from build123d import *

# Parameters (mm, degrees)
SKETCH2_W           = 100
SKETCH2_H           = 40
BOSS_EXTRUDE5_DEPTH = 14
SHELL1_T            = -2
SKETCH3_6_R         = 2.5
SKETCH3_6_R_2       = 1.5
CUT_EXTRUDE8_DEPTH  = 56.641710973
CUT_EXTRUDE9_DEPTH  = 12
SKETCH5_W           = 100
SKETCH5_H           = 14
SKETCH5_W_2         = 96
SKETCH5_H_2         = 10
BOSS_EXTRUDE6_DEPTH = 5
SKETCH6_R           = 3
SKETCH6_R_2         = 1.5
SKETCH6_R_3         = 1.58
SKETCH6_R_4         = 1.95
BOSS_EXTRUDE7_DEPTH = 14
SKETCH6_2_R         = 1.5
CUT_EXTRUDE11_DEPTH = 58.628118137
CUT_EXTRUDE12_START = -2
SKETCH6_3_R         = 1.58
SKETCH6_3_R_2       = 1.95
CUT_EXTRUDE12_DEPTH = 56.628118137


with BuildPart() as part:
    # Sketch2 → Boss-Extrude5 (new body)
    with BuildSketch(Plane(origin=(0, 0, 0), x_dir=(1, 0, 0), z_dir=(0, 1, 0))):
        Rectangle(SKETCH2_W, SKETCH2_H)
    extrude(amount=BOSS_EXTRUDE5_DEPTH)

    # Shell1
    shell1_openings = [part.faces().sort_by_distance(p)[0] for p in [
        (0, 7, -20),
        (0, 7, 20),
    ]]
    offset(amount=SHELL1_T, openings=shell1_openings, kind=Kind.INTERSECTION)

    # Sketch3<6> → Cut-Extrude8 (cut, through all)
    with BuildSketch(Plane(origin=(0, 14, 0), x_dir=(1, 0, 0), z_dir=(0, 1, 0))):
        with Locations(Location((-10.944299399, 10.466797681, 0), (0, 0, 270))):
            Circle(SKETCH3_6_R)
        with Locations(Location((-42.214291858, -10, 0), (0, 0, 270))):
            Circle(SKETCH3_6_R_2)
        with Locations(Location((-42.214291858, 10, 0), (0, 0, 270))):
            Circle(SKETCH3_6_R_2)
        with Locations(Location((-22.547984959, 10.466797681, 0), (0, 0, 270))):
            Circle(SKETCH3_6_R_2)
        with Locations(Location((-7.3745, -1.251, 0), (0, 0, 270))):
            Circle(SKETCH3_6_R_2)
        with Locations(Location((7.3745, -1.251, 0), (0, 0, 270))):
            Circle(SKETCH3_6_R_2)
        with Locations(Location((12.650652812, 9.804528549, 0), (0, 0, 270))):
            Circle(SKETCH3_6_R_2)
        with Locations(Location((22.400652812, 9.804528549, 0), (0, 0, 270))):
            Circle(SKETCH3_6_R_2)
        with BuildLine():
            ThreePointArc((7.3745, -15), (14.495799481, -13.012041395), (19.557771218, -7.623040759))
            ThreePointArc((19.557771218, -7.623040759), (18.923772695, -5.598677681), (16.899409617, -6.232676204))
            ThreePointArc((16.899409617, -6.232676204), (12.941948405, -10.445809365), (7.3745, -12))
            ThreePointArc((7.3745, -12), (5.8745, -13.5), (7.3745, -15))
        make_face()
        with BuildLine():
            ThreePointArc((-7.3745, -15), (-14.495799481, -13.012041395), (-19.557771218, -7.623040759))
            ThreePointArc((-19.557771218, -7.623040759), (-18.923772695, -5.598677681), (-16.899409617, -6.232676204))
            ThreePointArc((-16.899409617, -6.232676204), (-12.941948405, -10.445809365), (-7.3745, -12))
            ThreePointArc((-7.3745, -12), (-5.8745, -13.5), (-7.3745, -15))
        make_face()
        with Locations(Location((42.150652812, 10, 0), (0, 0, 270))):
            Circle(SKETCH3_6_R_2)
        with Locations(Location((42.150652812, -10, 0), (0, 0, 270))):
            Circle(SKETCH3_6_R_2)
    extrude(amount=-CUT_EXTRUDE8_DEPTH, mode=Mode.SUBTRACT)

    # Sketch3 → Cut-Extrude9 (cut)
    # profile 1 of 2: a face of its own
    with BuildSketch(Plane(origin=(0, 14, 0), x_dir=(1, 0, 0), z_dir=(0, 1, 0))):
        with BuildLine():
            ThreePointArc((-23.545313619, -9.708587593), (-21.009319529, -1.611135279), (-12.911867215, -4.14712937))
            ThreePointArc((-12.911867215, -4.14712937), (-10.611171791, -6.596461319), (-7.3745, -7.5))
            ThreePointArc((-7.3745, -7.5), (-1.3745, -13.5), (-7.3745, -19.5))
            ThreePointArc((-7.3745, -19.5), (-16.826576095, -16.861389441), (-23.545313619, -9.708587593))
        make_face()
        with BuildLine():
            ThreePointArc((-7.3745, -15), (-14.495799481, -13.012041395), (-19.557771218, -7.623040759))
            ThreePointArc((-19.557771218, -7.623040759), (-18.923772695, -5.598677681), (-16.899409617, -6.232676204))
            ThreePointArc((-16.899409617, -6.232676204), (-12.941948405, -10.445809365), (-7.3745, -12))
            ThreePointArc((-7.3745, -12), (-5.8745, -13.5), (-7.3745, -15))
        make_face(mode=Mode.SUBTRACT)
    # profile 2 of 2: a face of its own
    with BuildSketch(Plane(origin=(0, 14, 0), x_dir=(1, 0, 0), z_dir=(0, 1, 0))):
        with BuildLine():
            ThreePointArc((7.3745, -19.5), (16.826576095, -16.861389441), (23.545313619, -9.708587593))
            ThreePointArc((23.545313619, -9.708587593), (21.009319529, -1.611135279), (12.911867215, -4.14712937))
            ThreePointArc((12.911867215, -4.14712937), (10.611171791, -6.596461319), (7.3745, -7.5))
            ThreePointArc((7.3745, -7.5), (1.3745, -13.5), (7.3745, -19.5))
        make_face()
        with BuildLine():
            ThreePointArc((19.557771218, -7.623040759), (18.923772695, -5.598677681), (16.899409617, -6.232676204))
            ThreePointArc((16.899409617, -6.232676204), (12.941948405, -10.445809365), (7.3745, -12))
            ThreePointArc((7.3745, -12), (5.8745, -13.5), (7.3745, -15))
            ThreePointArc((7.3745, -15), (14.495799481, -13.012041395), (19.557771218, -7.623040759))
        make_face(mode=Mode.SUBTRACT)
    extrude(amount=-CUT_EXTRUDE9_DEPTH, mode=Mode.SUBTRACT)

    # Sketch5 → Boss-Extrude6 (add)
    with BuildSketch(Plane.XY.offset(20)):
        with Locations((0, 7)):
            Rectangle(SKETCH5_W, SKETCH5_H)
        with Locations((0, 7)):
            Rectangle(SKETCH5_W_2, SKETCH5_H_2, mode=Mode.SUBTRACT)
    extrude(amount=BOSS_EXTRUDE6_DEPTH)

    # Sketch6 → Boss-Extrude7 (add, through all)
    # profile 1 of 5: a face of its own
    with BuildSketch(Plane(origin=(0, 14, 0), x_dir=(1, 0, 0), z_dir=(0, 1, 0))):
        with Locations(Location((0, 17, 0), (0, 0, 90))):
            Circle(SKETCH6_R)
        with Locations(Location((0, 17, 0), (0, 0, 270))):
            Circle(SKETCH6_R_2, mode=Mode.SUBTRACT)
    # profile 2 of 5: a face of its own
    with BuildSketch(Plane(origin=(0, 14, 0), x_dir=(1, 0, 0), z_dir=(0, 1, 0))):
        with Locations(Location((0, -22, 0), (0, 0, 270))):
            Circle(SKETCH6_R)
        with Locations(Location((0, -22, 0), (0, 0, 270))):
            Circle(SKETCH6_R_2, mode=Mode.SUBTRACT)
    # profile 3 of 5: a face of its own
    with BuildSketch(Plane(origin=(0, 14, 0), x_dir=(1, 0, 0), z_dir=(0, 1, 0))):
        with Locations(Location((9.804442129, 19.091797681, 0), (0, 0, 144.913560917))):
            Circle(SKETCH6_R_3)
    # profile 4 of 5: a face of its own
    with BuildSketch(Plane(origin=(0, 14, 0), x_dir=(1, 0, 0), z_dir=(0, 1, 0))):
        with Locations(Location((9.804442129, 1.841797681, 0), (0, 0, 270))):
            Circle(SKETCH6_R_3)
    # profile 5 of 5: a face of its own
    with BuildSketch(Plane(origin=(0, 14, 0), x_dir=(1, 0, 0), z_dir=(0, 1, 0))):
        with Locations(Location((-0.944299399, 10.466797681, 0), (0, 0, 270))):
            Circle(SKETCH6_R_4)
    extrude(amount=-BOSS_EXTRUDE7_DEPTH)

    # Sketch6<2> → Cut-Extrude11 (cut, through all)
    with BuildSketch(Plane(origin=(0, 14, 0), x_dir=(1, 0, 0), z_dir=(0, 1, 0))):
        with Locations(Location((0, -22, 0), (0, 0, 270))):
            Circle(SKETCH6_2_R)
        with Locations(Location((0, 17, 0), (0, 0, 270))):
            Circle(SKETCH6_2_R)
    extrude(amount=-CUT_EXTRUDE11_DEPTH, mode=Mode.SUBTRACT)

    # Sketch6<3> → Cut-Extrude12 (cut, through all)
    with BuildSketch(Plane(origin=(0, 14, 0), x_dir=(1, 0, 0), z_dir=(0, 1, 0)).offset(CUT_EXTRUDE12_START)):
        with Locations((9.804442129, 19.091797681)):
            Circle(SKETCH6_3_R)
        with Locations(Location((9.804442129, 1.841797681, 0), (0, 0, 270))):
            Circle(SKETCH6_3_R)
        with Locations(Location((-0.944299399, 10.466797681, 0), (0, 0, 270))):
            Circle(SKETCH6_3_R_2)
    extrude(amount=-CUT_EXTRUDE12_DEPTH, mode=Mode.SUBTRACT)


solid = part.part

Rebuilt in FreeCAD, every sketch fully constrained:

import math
import FreeCAD as App
import Part
import Sketcher
Q = App.Units.Quantity


def faces_at(feature, points):
    """Names of the faces that lie closest to the given points."""
    faces = feature.Shape.Faces
    near = lambda p: min(range(len(faces)), key=lambda i: faces[i].distToShape(Part.Vertex(*p))[0])
    return sorted({f"Face{near(p) + 1}" for p in points})

doc = App.newDocument("Part")
body = doc.addObject("PartDesign::Body", "Body")

# Sketch on XZ plane
sketch1 = body.newObject("Sketcher::SketchObject", "Sketch")
sketch1.AttachmentSupport = (doc.getObject("XZ_Plane"), [""])
sketch1.MapMode = "FlatFace"
sketch1.addGeometry([
    Part.LineSegment(App.Vector(-50, -20, 0), App.Vector(-50, 20, 0)),
    Part.LineSegment(App.Vector(-50, 20, 0), App.Vector(50, 20, 0)),
    Part.LineSegment(App.Vector(50, 20, 0), App.Vector(50, -20, 0)),
    Part.LineSegment(App.Vector(50, -20, 0), App.Vector(-50, -20, 0)),
], False)
sketch1.addConstraint([
    Sketcher.Constraint("Coincident", 0, 2, 1, 1),
    Sketcher.Constraint("Coincident", 1, 2, 2, 1),
    Sketcher.Constraint("Coincident", 2, 2, 3, 1),
    Sketcher.Constraint("Coincident", 3, 2, 0, 1),
    Sketcher.Constraint("Vertical", 0),
    Sketcher.Constraint("Horizontal", 1),
    Sketcher.Constraint("Vertical", 2),
    Sketcher.Constraint("Horizontal", 3),
    Sketcher.Constraint("Symmetric", 0, 2, 2, 2, -1, 1),
    Sketcher.Constraint("DistanceX", 1, 1, 1, 2, Q("100 mm")),
    Sketcher.Constraint("DistanceY", 0, 1, 0, 2, Q("40 mm")),
])
pad1 = body.newObject("PartDesign::Pad", "Pad")
pad1.Profile = sketch1
pad1.Length = 14
pad1.Reversed = True
doc.recompute()

thickness = body.newObject("PartDesign::Thickness", "Thickness")
thickness.Base = (pad1, faces_at(pad1, [(0, 7, -20), (0, 7, 20)]))
thickness.Value = 2
thickness.Reversed = True
thickness.Join = "Intersection"

# Sketch on XZ plane
sketch2 = body.newObject("Sketcher::SketchObject", "Sketch001")
sketch2.AttachmentSupport = (doc.getObject("XZ_Plane"), [""])
sketch2.MapMode = "FlatFace"
sketch2.AttachmentOffset = App.Placement(App.Vector(0, 0, -14), App.Rotation())
sketch2.addGeometry([
    Part.Circle(App.Vector(-10.9, -10.5, 0), App.Vector(0, 0, 1), 2.5),  # 0
    Part.Circle(App.Vector(-42.2, 10, 0), App.Vector(0, 0, 1), 1.5),  # 1
    Part.Circle(App.Vector(-42.2, -10, 0), App.Vector(0, 0, 1), 1.5),  # 2
    Part.Circle(App.Vector(-22.5, -10.5, 0), App.Vector(0, 0, 1), 1.5),  # 3
    Part.Circle(App.Vector(-7.4, 1.3, 0), App.Vector(0, 0, 1), 1.5),  # 4
    Part.Circle(App.Vector(7.4, 1.3, 0), App.Vector(0, 0, 1), 1.5),  # 5
    Part.Circle(App.Vector(12.7, -9.8, 0), App.Vector(0, 0, 1), 1.5),  # 6
    Part.Circle(App.Vector(22.4, -9.8, 0), App.Vector(0, 0, 1), 1.5),  # 7
    Part.ArcOfCircle(Part.Circle(App.Vector(7.4, 1.3, 0), App.Vector(0, 0, 1), 13.7), math.radians(28), math.radians(90)),  # 8
    Part.ArcOfCircle(Part.Circle(App.Vector(18.2, 6.9, 0), App.Vector(0, 0, 1), 1.5), math.radians(-152), math.radians(28)),  # 9
    Part.ArcOfCircle(Part.Circle(App.Vector(7.4, 1.3, 0), App.Vector(0, 0, 1), 10.7), math.radians(28), math.radians(90)),  # 10
    Part.ArcOfCircle(Part.Circle(App.Vector(7.4, 13.5, 0), App.Vector(0, 0, 1), 1.5), math.radians(90), math.radians(270)),  # 11
    Part.ArcOfCircle(Part.Circle(App.Vector(-7.4, 1.3, 0), App.Vector(0, 0, 1), 13.7), math.radians(90), math.radians(152)),  # 12
    Part.ArcOfCircle(Part.Circle(App.Vector(-7.4, 13.5, 0), App.Vector(0, 0, 1), 1.5), math.radians(-90), math.radians(90)),  # 13
    Part.ArcOfCircle(Part.Circle(App.Vector(-7.4, 1.3, 0), App.Vector(0, 0, 1), 10.7), math.radians(90), math.radians(152)),  # 14
    Part.ArcOfCircle(Part.Circle(App.Vector(-18.2, 6.9, 0), App.Vector(0, 0, 1), 1.5), math.radians(152), math.radians(332)),  # 15
    Part.Circle(App.Vector(42.2, -10, 0), App.Vector(0, 0, 1), 1.5),  # 16
    Part.Circle(App.Vector(42.2, 10, 0), App.Vector(0, 0, 1), 1.5),  # 17
], False)
sketch2.addConstraint([
    Sketcher.Constraint("Tangent", 8, 1, 9, 2),
    Sketcher.Constraint("Tangent", 9, 1, 10, 1),
    Sketcher.Constraint("Tangent", 10, 2, 11, 2),
    Sketcher.Constraint("Tangent", 11, 1, 8, 2),
    Sketcher.Constraint("Tangent", 12, 1, 13, 2),
    Sketcher.Constraint("Tangent", 13, 1, 14, 1),
    Sketcher.Constraint("Tangent", 14, 2, 15, 2),
    Sketcher.Constraint("Tangent", 15, 1, 12, 2),
    Sketcher.Constraint("Coincident", 8, 3, 5, 3),
    Sketcher.Constraint("Coincident", 10, 3, 5, 3),
    Sketcher.Constraint("Coincident", 12, 3, 4, 3),
    Sketcher.Constraint("Coincident", 14, 3, 4, 3),
    Sketcher.Constraint("Equal", 1, 2),
    Sketcher.Constraint("Equal", 2, 3),
    Sketcher.Constraint("Equal", 3, 4),
    Sketcher.Constraint("Equal", 4, 5),
    Sketcher.Constraint("Equal", 5, 6),
    Sketcher.Constraint("Equal", 6, 7),
    Sketcher.Constraint("Equal", 7, 9),
    Sketcher.Constraint("Equal", 8, 12),
    Sketcher.Constraint("Equal", 11, 13),
    Sketcher.Constraint("Equal", 15, 16),
    Sketcher.Constraint("Equal", 16, 17),
    Sketcher.Constraint("Symmetric", 4, 3, 5, 3, -2),
    Sketcher.Constraint("Symmetric", 1, 3, 2, 3, -1),
    Sketcher.Constraint("Symmetric", 16, 3, 17, 3, -1),
    Sketcher.Constraint("Horizontal", 0, 3, 3, 3),
    Sketcher.Constraint("Horizontal", 6, 3, 7, 3),
    Sketcher.Constraint("Horizontal", 9, 3, 15, 3),
    Sketcher.Constraint("Horizontal", 2, 3, 16, 3),
    Sketcher.Constraint("Vertical", 10, 3, 11, 3),
    Sketcher.Constraint("Vertical", 12, 3, 13, 3),
    Sketcher.Constraint("Diameter", 0, Q("5 mm")),
    Sketcher.Constraint("Diameter", 1, Q("3 mm")),
    Sketcher.Constraint("DistanceY", -1, 1, 1, 3, Q("10 mm")),
    Sketcher.Constraint("DistanceY", -1, 1, 10, 2, Q("12 mm")),
    Sketcher.Constraint("Radius", 8, Q("13.749 mm")),
    Sketcher.Constraint("DistanceX", 6, 3, 16, 3, Q("29.5 mm")),
    Sketcher.Constraint("DistanceX", 6, 3, 7, 3, Q("9.75 mm")),
    Sketcher.Constraint("DistanceX", 4, 3, 5, 3, Q("14.749 mm")),
    Sketcher.Constraint("DistanceX", 0, 3, -1, 1, Q("10.944299 mm")),
    Sketcher.Constraint("DistanceX", 1, 3, -1, 1, Q("42.214292 mm")),
    Sketcher.Constraint("DistanceY", 6, 3, -1, 1, Q("9.804529 mm")),
    Sketcher.Constraint("DistanceX", -1, 1, 9, 3, Q("18.22859 mm")),
    Sketcher.Constraint("DistanceY", 0, 3, 6, 3, Q("0.662269 mm")),
    Sketcher.Constraint("DistanceX", 3, 3, -1, 1, Q("22.547985 mm")),
    Sketcher.Constraint("DistanceX", -1, 1, 6, 3, Q("12.650653 mm")),
])
pocket1 = body.newObject("PartDesign::Pocket", "Pocket")
pocket1.Profile = sketch2
pocket1.Type = "ThroughAll"
pocket1.Reversed = True

# Sketch on XZ plane
sketch3 = body.newObject("Sketcher::SketchObject", "Sketch002")
sketch3.AttachmentSupport = (doc.getObject("XZ_Plane"), [""])
sketch3.MapMode = "FlatFace"
sketch3.AttachmentOffset = App.Placement(App.Vector(0, 0, -14), App.Rotation())
sketch3.addGeometry([
    Part.ArcOfCircle(Part.Circle(App.Vector(-18.2, 6.9, 0), App.Vector(0, 0, 1), 6), math.radians(152), math.radians(332)),  # 0
    Part.ArcOfCircle(Part.Circle(App.Vector(-7.4, 1.3, 0), App.Vector(0, 0, 1), 18.2), math.radians(90), math.radians(152)),  # 1
    Part.ArcOfCircle(Part.Circle(App.Vector(-7.4, 13.5, 0), App.Vector(0, 0, 1), 6), math.radians(-90), math.radians(90)),  # 2
    Part.ArcOfCircle(Part.Circle(App.Vector(-7.4, 1.3, 0), App.Vector(0, 0, 1), 6.2), math.radians(90), math.radians(152)),  # 3
    Part.ArcOfCircle(Part.Circle(App.Vector(-7.4, 1.3, 0), App.Vector(0, 0, 1), 13.7), math.radians(90), math.radians(152)),  # 4
    Part.ArcOfCircle(Part.Circle(App.Vector(-18.2, 6.9, 0), App.Vector(0, 0, 1), 1.5), math.radians(152), math.radians(332)),  # 5
    Part.ArcOfCircle(Part.Circle(App.Vector(-7.4, 1.3, 0), App.Vector(0, 0, 1), 10.7), math.radians(90), math.radians(152)),  # 6
    Part.ArcOfCircle(Part.Circle(App.Vector(-7.4, 13.5, 0), App.Vector(0, 0, 1), 1.5), math.radians(-90), math.radians(90)),  # 7
    Part.ArcOfCircle(Part.Circle(App.Vector(7.4, 1.3, 0), App.Vector(0, 0, 1), 18.2), math.radians(28), math.radians(90)),  # 8
    Part.ArcOfCircle(Part.Circle(App.Vector(18.2, 6.9, 0), App.Vector(0, 0, 1), 6), math.radians(-152), math.radians(28)),  # 9
    Part.ArcOfCircle(Part.Circle(App.Vector(7.4, 1.3, 0), App.Vector(0, 0, 1), 6.2), math.radians(28), math.radians(90)),  # 10
    Part.ArcOfCircle(Part.Circle(App.Vector(7.4, 13.5, 0), App.Vector(0, 0, 1), 6), math.radians(90), math.radians(270)),  # 11
    Part.ArcOfCircle(Part.Circle(App.Vector(18.2, 6.9, 0), App.Vector(0, 0, 1), 1.5), math.radians(-152), math.radians(28)),  # 12
    Part.ArcOfCircle(Part.Circle(App.Vector(7.4, 1.3, 0), App.Vector(0, 0, 1), 13.7), math.radians(28), math.radians(90)),  # 13
    Part.ArcOfCircle(Part.Circle(App.Vector(7.4, 13.5, 0), App.Vector(0, 0, 1), 1.5), math.radians(90), math.radians(270)),  # 14
    Part.ArcOfCircle(Part.Circle(App.Vector(7.4, 1.3, 0), App.Vector(0, 0, 1), 10.7), math.radians(28), math.radians(90)),  # 15
], False)
sketch3.addConstraint([
    Sketcher.Constraint("Tangent", 0, 1, 1, 2),
    Sketcher.Constraint("Tangent", 1, 1, 2, 2),
    Sketcher.Constraint("Tangent", 2, 1, 3, 1),
    Sketcher.Constraint("Tangent", 3, 2, 0, 2),
    Sketcher.Constraint("Tangent", 4, 2, 5, 1),
    Sketcher.Constraint("Tangent", 5, 2, 6, 2),
    Sketcher.Constraint("Tangent", 6, 1, 7, 1),
    Sketcher.Constraint("Tangent", 7, 2, 4, 1),
    Sketcher.Constraint("Tangent", 8, 1, 9, 2),
    Sketcher.Constraint("Tangent", 9, 1, 10, 1),
    Sketcher.Constraint("Tangent", 10, 2, 11, 2),
    Sketcher.Constraint("Tangent", 11, 1, 8, 2),
    Sketcher.Constraint("Tangent", 12, 2, 13, 1),
    Sketcher.Constraint("Tangent", 13, 2, 14, 1),
    Sketcher.Constraint("Tangent", 14, 2, 15, 2),
    Sketcher.Constraint("Tangent", 15, 1, 12, 1),
    Sketcher.Constraint("Coincident", 3, 3, 1, 3),
    Sketcher.Constraint("Coincident", 4, 3, 1, 3),
    Sketcher.Constraint("Coincident", 5, 3, 0, 3),
    Sketcher.Constraint("Coincident", 6, 3, 1, 3),
    Sketcher.Constraint("Coincident", 10, 3, 8, 3),
    Sketcher.Constraint("Coincident", 12, 3, 9, 3),
    Sketcher.Constraint("Coincident", 13, 3, 8, 3),
    Sketcher.Constraint("Coincident", 14, 3, 11, 3),
    Sketcher.Constraint("Equal", 1, 8),
    Sketcher.Constraint("Equal", 2, 9),
    Sketcher.Constraint("Equal", 7, 12),
    Sketcher.Constraint("Equal", 6, 15),
    Sketcher.Constraint("Symmetric", 1, 3, 8, 3, -2),
    Sketcher.Constraint("Horizontal", 5, 3, 9, 3),
    Sketcher.Constraint("Vertical", 1, 3, 2, 3),
    Sketcher.Constraint("Vertical", 6, 3, 7, 3),
    Sketcher.Constraint("Vertical", 10, 3, 11, 3),
    Sketcher.Constraint("Radius", 0, Q("6 mm")),
    Sketcher.Constraint("Radius", 5, Q("1.5 mm")),
    Sketcher.Constraint("DistanceY", -1, 1, 6, 1, Q("12 mm")),
    Sketcher.Constraint("Radius", 1, Q("18.249 mm")),
    Sketcher.Constraint("DistanceX", 3, 3, 8, 3, Q("14.749 mm")),
    Sketcher.Constraint("DistanceX", 0, 3, -1, 1, Q("18.22859 mm")),
])
pocket2 = body.newObject("PartDesign::Pocket", "Pocket001")
pocket2.Profile = sketch3
pocket2.Length = 12
pocket2.Reversed = True

# Sketch on XY plane
sketch4 = body.newObject("Sketcher::SketchObject", "Sketch003")
sketch4.AttachmentSupport = (doc.getObject("XY_Plane"), [""])
sketch4.MapMode = "FlatFace"
sketch4.AttachmentOffset = App.Placement(App.Vector(0, 0, 20), App.Rotation())
sketch4.addGeometry([
    Part.LineSegment(App.Vector(-50, 14, 0), App.Vector(-50, 0, 0)),  # 0
    Part.LineSegment(App.Vector(-50, 0, 0), App.Vector(50, 0, 0)),  # 1
    Part.LineSegment(App.Vector(50, 0, 0), App.Vector(50, 14, 0)),  # 2
    Part.LineSegment(App.Vector(50, 14, 0), App.Vector(-50, 14, 0)),  # 3
    Part.LineSegment(App.Vector(48, 2, 0), App.Vector(-48, 2, 0)),  # 4
    Part.LineSegment(App.Vector(-48, 2, 0), App.Vector(-48, 12, 0)),  # 5
    Part.LineSegment(App.Vector(-48, 12, 0), App.Vector(48, 12, 0)),  # 6
    Part.LineSegment(App.Vector(48, 12, 0), App.Vector(48, 2, 0)),  # 7
], False)
sketch4.addConstraint([
    Sketcher.Constraint("Coincident", 0, 2, 1, 1),
    Sketcher.Constraint("Coincident", 1, 2, 2, 1),
    Sketcher.Constraint("Coincident", 2, 2, 3, 1),
    Sketcher.Constraint("Coincident", 3, 2, 0, 1),
    Sketcher.Constraint("Coincident", 4, 2, 5, 1),
    Sketcher.Constraint("Coincident", 5, 2, 6, 1),
    Sketcher.Constraint("Coincident", 6, 2, 7, 1),
    Sketcher.Constraint("Coincident", 7, 2, 4, 1),
    Sketcher.Constraint("Vertical", 0),
    Sketcher.Constraint("Horizontal", 1),
    Sketcher.Constraint("Vertical", 2),
    Sketcher.Constraint("Horizontal", 3),
    Sketcher.Constraint("Horizontal", 4),
    Sketcher.Constraint("Vertical", 5),
    Sketcher.Constraint("Horizontal", 6),
    Sketcher.Constraint("Vertical", 7),
    Sketcher.Constraint("Symmetric", 0, 2, 1, 2, -1, 1),
    Sketcher.Constraint("DistanceX", 1, 1, 1, 2, Q("100 mm")),
    Sketcher.Constraint("DistanceX", 4, 2, 4, 1, Q("96 mm")),
    Sketcher.Constraint("DistanceY", 0, 2, 0, 1, Q("14 mm")),
    Sketcher.Constraint("DistanceY", 5, 1, 5, 2, Q("10 mm")),
    Sketcher.Constraint("DistanceX", 4, 2, -1, 1, Q("48 mm")),
    Sketcher.Constraint("DistanceY", -1, 1, 4, 2, Q("2 mm")),
])
pad2 = body.newObject("PartDesign::Pad", "Pad001")
pad2.Profile = sketch4
pad2.Length = 5

# Sketch on XZ plane
sketch5 = body.newObject("Sketcher::SketchObject", "Sketch004")
sketch5.AttachmentSupport = (doc.getObject("XZ_Plane"), [""])
sketch5.MapMode = "FlatFace"
sketch5.AttachmentOffset = App.Placement(App.Vector(0, 0, -14), App.Rotation())
sketch5.addGeometry([
    Part.Circle(App.Vector(0, -17, 0), App.Vector(0, 0, 1), 3),  # 0
    Part.Circle(App.Vector(0, -17, 0), App.Vector(0, 0, 1), 1.5),  # 1
    Part.Circle(App.Vector(0, 22, 0), App.Vector(0, 0, 1), 3),  # 2
    Part.Circle(App.Vector(0, 22, 0), App.Vector(0, 0, 1), 1.5),  # 3
    Part.Circle(App.Vector(9.8, -19.1, 0), App.Vector(0, 0, 1), 1.6),  # 4
    Part.Circle(App.Vector(9.8, -1.8, 0), App.Vector(0, 0, 1), 1.6),  # 5
    Part.Circle(App.Vector(-0.9, -10.5, 0), App.Vector(0, 0, 1), 1.9),  # 6
], False)
sketch5.addConstraint([
    Sketcher.Constraint("Coincident", 1, 3, 0, 3),
    Sketcher.Constraint("Coincident", 3, 3, 2, 3),
    Sketcher.Constraint("Equal", 0, 2),
    Sketcher.Constraint("Equal", 1, 3),
    Sketcher.Constraint("Equal", 4, 5),
    Sketcher.Constraint("PointOnObject", 0, 3, -2),
    Sketcher.Constraint("PointOnObject", 2, 3, -2),
    Sketcher.Constraint("Vertical", 4, 3, 5, 3),
    Sketcher.Constraint("Diameter", 0, Q("6 mm")),
    Sketcher.Constraint("Diameter", 1, Q("3 mm")),
    Sketcher.Constraint("Diameter", 6, Q("3.9 mm")),
    Sketcher.Constraint("Diameter", 4, Q("3.16 mm")),
    Sketcher.Constraint("DistanceY", 0, 3, -1, 1, Q("17 mm")),
    Sketcher.Constraint("DistanceY", -1, 1, 2, 3, Q("22 mm")),
    Sketcher.Constraint("DistanceY", 4, 3, 5, 3, Q("17.25 mm")),
    Sketcher.Constraint("DistanceY", 4, 3, 6, 3, Q("8.625 mm")),
    Sketcher.Constraint("DistanceX", 6, 3, -1, 1, Q("0.944299 mm")),
    Sketcher.Constraint("DistanceX", 6, 3, 4, 3, Q("10.748742 mm")),
    Sketcher.Constraint("DistanceY", 4, 3, -1, 1, Q("19.091798 mm")),
])
pad3 = body.newObject("PartDesign::Pad", "Pad002")
pad3.Profile = sketch5
pad3.Length = 14

# Sketch on XZ plane
sketch6 = body.newObject("Sketcher::SketchObject", "Sketch005")
sketch6.AttachmentSupport = (doc.getObject("XZ_Plane"), [""])
sketch6.MapMode = "FlatFace"
sketch6.AttachmentOffset = App.Placement(App.Vector(0, 0, -14), App.Rotation())
sketch6.addGeometry([
    Part.Circle(App.Vector(0, 22, 0), App.Vector(0, 0, 1), 1.5),
    Part.Circle(App.Vector(0, -17, 0), App.Vector(0, 0, 1), 1.5),
], False)
sketch6.addConstraint([
    Sketcher.Constraint("Equal", 0, 1),
    Sketcher.Constraint("PointOnObject", 0, 3, -2),
    Sketcher.Constraint("PointOnObject", 1, 3, -2),
    Sketcher.Constraint("Diameter", 0, Q("3 mm")),
    Sketcher.Constraint("DistanceY", -1, 1, 0, 3, Q("22 mm")),
    Sketcher.Constraint("DistanceY", 1, 3, -1, 1, Q("17 mm")),
])
pocket3 = body.newObject("PartDesign::Pocket", "Pocket002")
pocket3.Profile = sketch6
pocket3.Type = "ThroughAll"
pocket3.Reversed = True

# Sketch on XZ plane
sketch7 = body.newObject("Sketcher::SketchObject", "Sketch006")
sketch7.AttachmentSupport = (doc.getObject("XZ_Plane"), [""])
sketch7.MapMode = "FlatFace"
sketch7.AttachmentOffset = App.Placement(App.Vector(0, 0, -12), App.Rotation())
sketch7.addGeometry([
    Part.Circle(App.Vector(9.8, -19.1, 0), App.Vector(0, 0, 1), 1.6),
    Part.Circle(App.Vector(9.8, -1.8, 0), App.Vector(0, 0, 1), 1.6),
    Part.Circle(App.Vector(-0.9, -10.5, 0), App.Vector(0, 0, 1), 1.9),
], False)
sketch7.addConstraint([
    Sketcher.Constraint("Equal", 0, 1),
    Sketcher.Constraint("Vertical", 0, 3, 1, 3),
    Sketcher.Constraint("Diameter", 2, Q("3.9 mm")),
    Sketcher.Constraint("Diameter", 0, Q("3.16 mm")),
    Sketcher.Constraint("DistanceY", 0, 3, 1, 3, Q("17.25 mm")),
    Sketcher.Constraint("DistanceY", 0, 3, 2, 3, Q("8.625 mm")),
    Sketcher.Constraint("DistanceX", 2, 3, -1, 1, Q("0.944299 mm")),
    Sketcher.Constraint("DistanceX", 2, 3, 0, 3, Q("10.748742 mm")),
    Sketcher.Constraint("DistanceY", 0, 3, -1, 1, Q("19.091798 mm")),
])
pocket4 = body.newObject("PartDesign::Pocket", "Pocket003")
pocket4.Profile = sketch7
pocket4.Type = "ThroughAll"
pocket4.Reversed = True

doc.recompute()
